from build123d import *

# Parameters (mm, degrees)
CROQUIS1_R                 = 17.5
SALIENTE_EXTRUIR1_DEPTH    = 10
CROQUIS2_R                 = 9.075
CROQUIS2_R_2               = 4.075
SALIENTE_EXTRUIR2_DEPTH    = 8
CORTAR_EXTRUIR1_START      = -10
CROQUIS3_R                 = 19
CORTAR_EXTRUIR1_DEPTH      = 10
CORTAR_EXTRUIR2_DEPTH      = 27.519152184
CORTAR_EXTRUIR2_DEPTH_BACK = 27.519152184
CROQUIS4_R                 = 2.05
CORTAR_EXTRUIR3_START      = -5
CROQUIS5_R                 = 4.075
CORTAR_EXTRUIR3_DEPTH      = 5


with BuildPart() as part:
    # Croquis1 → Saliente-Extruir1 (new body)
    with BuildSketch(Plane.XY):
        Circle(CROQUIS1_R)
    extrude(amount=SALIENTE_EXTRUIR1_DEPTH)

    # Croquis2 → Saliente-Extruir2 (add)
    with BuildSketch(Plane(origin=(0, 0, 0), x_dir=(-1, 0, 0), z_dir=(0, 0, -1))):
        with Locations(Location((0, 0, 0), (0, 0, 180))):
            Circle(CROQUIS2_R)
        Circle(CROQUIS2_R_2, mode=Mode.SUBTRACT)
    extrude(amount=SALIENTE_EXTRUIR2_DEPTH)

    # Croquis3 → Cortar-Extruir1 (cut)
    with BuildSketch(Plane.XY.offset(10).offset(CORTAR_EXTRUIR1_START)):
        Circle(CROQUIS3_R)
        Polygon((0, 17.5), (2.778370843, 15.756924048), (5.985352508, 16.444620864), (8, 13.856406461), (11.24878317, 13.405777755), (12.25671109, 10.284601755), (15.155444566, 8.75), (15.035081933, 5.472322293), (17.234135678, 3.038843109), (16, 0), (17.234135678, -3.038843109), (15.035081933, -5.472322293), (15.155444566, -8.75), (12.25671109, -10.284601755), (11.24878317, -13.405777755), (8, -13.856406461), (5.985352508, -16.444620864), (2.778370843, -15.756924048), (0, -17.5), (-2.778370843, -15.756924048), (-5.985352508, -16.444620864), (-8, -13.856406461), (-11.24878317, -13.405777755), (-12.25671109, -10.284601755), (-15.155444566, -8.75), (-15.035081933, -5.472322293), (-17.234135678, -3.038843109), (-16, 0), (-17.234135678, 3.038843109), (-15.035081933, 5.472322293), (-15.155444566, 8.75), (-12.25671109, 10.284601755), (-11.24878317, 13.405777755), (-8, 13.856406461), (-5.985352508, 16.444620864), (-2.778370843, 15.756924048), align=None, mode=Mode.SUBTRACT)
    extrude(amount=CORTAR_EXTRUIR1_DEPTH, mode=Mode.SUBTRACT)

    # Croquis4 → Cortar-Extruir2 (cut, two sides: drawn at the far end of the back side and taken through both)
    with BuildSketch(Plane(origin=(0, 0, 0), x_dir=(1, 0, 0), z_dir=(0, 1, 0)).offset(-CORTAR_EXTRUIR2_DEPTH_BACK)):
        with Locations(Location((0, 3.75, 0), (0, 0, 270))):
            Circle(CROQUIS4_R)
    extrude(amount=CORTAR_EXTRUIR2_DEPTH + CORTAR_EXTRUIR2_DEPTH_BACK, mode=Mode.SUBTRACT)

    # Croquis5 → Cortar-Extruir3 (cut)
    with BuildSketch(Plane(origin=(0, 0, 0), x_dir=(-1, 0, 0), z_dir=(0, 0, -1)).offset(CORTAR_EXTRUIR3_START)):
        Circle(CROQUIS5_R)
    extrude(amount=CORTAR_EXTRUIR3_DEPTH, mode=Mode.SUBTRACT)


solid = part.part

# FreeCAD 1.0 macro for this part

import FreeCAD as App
import Part
import Sketcher

V = App.Vector
Q = App.Units.Quantity


def add_polygon(sketch, points):
    """Adds a closed chain of lines whose ends are joined by coincident constraints."""
    first, n = sketch.GeometryCount, len(points)
    for a, b in zip(points, points[1:] + points[:1]):
        sketch.addGeometry(Part.LineSegment(App.Vector(*a, 0), App.Vector(*b, 0)), False)
    for i in range(n):
        sketch.addConstraint(Sketcher.Constraint("Coincident", first + i, 2, first + (i + 1) % n, 1))

doc = App.newDocument("Part")
body = doc.addObject("PartDesign::Body", "Body")

# Sketch on XY plane
sketch1 = body.newObject("Sketcher::SketchObject", "Sketch")
sketch1.AttachmentSupport = (doc.getObject("XY_Plane"), [""])
sketch1.MapMode = "FlatFace"
sketch1.addGeometry(Part.Circle(V(0, 0, 0), V(0, 0, 1), 18), False)
sketch1.addConstraint([
    Sketcher.Constraint("Coincident", 0, 3, -1, 1),
    Sketcher.Constraint("Diameter", 0, Q("35 mm")),
])
pad1 = body.newObject("PartDesign::Pad", "Pad")
pad1.Profile = sketch1
pad1.Length = 10

# Sketch on XY plane
sketch2 = body.newObject("Sketcher::SketchObject", "Sketch001")
sketch2.AttachmentSupport = (doc.getObject("XY_Plane"), [""])
sketch2.MapMode = "FlatFace"
sketch2.addGeometry([
    Part.Circle(V(0, 0, 0), V(0, 0, 1), 9.1),
    Part.Circle(V(0, 0, 0), V(0, 0, 1), 4.1),
], False)
sketch2.addConstraint([
    Sketcher.Constraint("Coincident", 0, 3, -1, 1),
    Sketcher.Constraint("Coincident", 1, 3, -1, 1),
    Sketcher.Constraint("Diameter", 0, Q("18.15 mm")),
    Sketcher.Constraint("Diameter", 1, Q("8.15 mm")),
])
pad2 = body.newObject("PartDesign::Pad", "Pad001")
pad2.Profile = sketch2
pad2.Length = 8
pad2.Reversed = True

# Sketch on XY plane
sketch3 = body.newObject("Sketcher::SketchObject", "Sketch002")
sketch3.AttachmentSupport = (doc.getObject("XY_Plane"), [""])
sketch3.MapMode = "FlatFace"
sketch3.addGeometry(Part.Circle(V(0, 0, 0), V(0, 0, 1), 19), False)  # 0
add_polygon(sketch3, [(-2.8, 15.8), (0, 17.5), (2.8, 15.8), (6, 16.4), (8, 13.9), (11.2, 13.4), (12.3, 10.3), (15.2, 8.8), (15, 5.5), (17.2, 3), (16, 0), (17.2, -3), (15, -5.5), (15.2, -8.8), (12.3, -10.3), (11.2, -13.4), (8, -13.9), (6, -16.4), (2.8, -15.8), (0, -17.5), (-2.8, -15.8), (-6, -16.4), (-8, -13.9), (-11.2, -13.4), (-12.3, -10.3), (-15.2, -8.8), (-15, -5.5), (-17.2, -3), (-16, 0), (-17.2, 3), (-15, 5.5), (-15.2, 8.8), (-12.3, 10.3), (-11.2, 13.4), (-8, 13.9), (-6, 16.4)])  # lines 1-36
sketch3.addConstraint([
    Sketcher.Constraint("Coincident", 0, 3, -1, 1),
    Sketcher.Constraint("Symmetric", 1, 2, 19, 2, -1, 1),
    Sketcher.Constraint("Symmetric", 2, 2, 20, 2, -1, 1),
    Sketcher.Constraint("Symmetric", 3, 2, 21, 2, -1, 1),
    Sketcher.Constraint("Symmetric", 4, 2, 22, 2, -1, 1),
    Sketcher.Constraint("Symmetric", 5, 2, 23, 2, -1, 1),
    Sketcher.Constraint("Symmetric", 6, 2, 24, 2, -1, 1),
    Sketcher.Constraint("Symmetric", 7, 2, 25, 2, -1, 1),
    Sketcher.Constraint("Symmetric", 8, 2, 26, 2, -1, 1),
    Sketcher.Constraint("Symmetric", 9, 2, 27, 2, -1, 1),
    Sketcher.Constraint("Symmetric", 10, 2, 28, 2, -1, 1),
    Sketcher.Constraint("Symmetric", 11, 2, 29, 2, -1, 1),
    Sketcher.Constraint("Symmetric", 12, 2, 30, 2, -1, 1),
    Sketcher.Constraint("Symmetric", 13, 2, 31, 2, -1, 1),
    Sketcher.Constraint("Symmetric", 14, 2, 32, 2, -1, 1),
    Sketcher.Constraint("Symmetric", 15, 2, 33, 2, -1, 1),
    Sketcher.Constraint("Symmetric", 16, 2, 34, 2, -1, 1),
    Sketcher.Constraint("Symmetric", 17, 2, 35, 2, -1, 1),
    Sketcher.Constraint("Symmetric", 18, 2, 36, 2, -1, 1),
    Sketcher.Constraint("Symmetric", 18, 2, 20, 2, -2),
    Sketcher.Constraint("Symmetric", 17, 2, 21, 2, -2),
    Sketcher.Constraint("Symmetric", 16, 2, 22, 2, -2),
    Sketcher.Constraint("Symmetric", 15, 2, 23, 2, -2),
    Sketcher.Constraint("Symmetric", 14, 2, 24, 2, -2),
    Sketcher.Constraint("Symmetric", 13, 2, 25, 2, -2),
    Sketcher.Constraint("Symmetric", 12, 2, 26, 2, -2),
    Sketcher.Constraint("Symmetric", 11, 2, 27, 2, -2),
    Sketcher.Constraint("PointOnObject", 1, 2, -2),
    Sketcher.Constraint("PointOnObject", 10, 2, -1),
    Sketcher.Constraint("Equal", 2, 3),
    Sketcher.Constraint("Equal", 3, 4),
    Sketcher.Constraint("Equal", 4, 5),
    Sketcher.Constraint("Equal", 5, 6),
    Sketcher.Constraint("Equal", 6, 7),
    Sketcher.Constraint("Equal", 7, 8),
    Sketcher.Constraint("Equal", 8, 9),
    Sketcher.Constraint("Equal", 9, 10),
    Sketcher.Constraint("Diameter", 0, Q("38 mm")),
    Sketcher.Constraint("DistanceX", -1, 1, 4, 2, Q("8 mm")),
    Sketcher.Constraint("DistanceX", -1, 1, 10, 2, Q("16 mm")),
    Sketcher.Constraint("DistanceY", -1, 1, 1, 2, Q("17.5 mm")),
    Sketcher.Constraint("DistanceY", -1, 1, 7, 2, Q("8.75 mm")),
    Sketcher.Constraint("DistanceY", -1, 1, 6, 2, Q("10.284602 mm")),
    Sketcher.Constraint("DistanceX", 5, 2, 8, 2, Q("3.786299 mm")),
    Sketcher.Constraint("DistanceY", 8, 2, 3, 2, Q("10.972299 mm")),
    Sketcher.Constraint("DistanceX", -1, 1, 2, 2, Q("2.778371 mm")),
    Sketcher.Constraint("DistanceY", -1, 1, 3, 2, Q("16.444621 mm")),
    Sketcher.Constraint("DistanceX", -1, 1, 6, 2, Q("12.256711 mm")),
])
pocket1 = body.newObject("PartDesign::Pocket", "Pocket")
pocket1.Profile = sketch3
pocket1.Length = 10
pocket1.Reversed = True

# Sketch on XZ plane
sketch4 = body.newObject("Sketcher::SketchObject", "Sketch003")
sketch4.AttachmentSupport = (doc.getObject("XZ_Plane"), [""])
sketch4.MapMode = "FlatFace"
sketch4.addGeometry(Part.Circle(V(0, -3.8, 0), V(0, 0, 1), 2), False)
sketch4.addConstraint([
    Sketcher.Constraint("PointOnObject", 0, 3, -2),
    Sketcher.Constraint("Diameter", 0, Q("4.1 mm")),
    Sketcher.Constraint("DistanceY", 0, 3, -1, 1, Q("3.75 mm")),
])
pocket2 = body.newObject("PartDesign::Pocket", "Pocket001")
pocket2.Profile = sketch4
pocket2.Type = "ThroughAll"
pocket2.Midplane = True

# Sketch on XY plane
sketch5 = body.newObject("Sketcher::SketchObject", "Sketch004")
sketch5.AttachmentSupport = (doc.getObject("XY_Plane"), [""])
sketch5.MapMode = "FlatFace"
sketch5.AttachmentOffset = App.Placement(V(0, 0, 5), App.Rotation())
sketch5.addGeometry(Part.Circle(V(0, 0, 0), V(0, 0, 1), 4.1), False)
sketch5.addConstraint([
    Sketcher.Constraint("Coincident", 0, 3, -1, 1),
    Sketcher.Constraint("Diameter", 0, Q("8.15 mm")),
])
pocket3 = body.newObject("PartDesign::Pocket", "Pocket002")
pocket3.Profile = sketch5
pocket3.Length = 5

doc.recompute()
